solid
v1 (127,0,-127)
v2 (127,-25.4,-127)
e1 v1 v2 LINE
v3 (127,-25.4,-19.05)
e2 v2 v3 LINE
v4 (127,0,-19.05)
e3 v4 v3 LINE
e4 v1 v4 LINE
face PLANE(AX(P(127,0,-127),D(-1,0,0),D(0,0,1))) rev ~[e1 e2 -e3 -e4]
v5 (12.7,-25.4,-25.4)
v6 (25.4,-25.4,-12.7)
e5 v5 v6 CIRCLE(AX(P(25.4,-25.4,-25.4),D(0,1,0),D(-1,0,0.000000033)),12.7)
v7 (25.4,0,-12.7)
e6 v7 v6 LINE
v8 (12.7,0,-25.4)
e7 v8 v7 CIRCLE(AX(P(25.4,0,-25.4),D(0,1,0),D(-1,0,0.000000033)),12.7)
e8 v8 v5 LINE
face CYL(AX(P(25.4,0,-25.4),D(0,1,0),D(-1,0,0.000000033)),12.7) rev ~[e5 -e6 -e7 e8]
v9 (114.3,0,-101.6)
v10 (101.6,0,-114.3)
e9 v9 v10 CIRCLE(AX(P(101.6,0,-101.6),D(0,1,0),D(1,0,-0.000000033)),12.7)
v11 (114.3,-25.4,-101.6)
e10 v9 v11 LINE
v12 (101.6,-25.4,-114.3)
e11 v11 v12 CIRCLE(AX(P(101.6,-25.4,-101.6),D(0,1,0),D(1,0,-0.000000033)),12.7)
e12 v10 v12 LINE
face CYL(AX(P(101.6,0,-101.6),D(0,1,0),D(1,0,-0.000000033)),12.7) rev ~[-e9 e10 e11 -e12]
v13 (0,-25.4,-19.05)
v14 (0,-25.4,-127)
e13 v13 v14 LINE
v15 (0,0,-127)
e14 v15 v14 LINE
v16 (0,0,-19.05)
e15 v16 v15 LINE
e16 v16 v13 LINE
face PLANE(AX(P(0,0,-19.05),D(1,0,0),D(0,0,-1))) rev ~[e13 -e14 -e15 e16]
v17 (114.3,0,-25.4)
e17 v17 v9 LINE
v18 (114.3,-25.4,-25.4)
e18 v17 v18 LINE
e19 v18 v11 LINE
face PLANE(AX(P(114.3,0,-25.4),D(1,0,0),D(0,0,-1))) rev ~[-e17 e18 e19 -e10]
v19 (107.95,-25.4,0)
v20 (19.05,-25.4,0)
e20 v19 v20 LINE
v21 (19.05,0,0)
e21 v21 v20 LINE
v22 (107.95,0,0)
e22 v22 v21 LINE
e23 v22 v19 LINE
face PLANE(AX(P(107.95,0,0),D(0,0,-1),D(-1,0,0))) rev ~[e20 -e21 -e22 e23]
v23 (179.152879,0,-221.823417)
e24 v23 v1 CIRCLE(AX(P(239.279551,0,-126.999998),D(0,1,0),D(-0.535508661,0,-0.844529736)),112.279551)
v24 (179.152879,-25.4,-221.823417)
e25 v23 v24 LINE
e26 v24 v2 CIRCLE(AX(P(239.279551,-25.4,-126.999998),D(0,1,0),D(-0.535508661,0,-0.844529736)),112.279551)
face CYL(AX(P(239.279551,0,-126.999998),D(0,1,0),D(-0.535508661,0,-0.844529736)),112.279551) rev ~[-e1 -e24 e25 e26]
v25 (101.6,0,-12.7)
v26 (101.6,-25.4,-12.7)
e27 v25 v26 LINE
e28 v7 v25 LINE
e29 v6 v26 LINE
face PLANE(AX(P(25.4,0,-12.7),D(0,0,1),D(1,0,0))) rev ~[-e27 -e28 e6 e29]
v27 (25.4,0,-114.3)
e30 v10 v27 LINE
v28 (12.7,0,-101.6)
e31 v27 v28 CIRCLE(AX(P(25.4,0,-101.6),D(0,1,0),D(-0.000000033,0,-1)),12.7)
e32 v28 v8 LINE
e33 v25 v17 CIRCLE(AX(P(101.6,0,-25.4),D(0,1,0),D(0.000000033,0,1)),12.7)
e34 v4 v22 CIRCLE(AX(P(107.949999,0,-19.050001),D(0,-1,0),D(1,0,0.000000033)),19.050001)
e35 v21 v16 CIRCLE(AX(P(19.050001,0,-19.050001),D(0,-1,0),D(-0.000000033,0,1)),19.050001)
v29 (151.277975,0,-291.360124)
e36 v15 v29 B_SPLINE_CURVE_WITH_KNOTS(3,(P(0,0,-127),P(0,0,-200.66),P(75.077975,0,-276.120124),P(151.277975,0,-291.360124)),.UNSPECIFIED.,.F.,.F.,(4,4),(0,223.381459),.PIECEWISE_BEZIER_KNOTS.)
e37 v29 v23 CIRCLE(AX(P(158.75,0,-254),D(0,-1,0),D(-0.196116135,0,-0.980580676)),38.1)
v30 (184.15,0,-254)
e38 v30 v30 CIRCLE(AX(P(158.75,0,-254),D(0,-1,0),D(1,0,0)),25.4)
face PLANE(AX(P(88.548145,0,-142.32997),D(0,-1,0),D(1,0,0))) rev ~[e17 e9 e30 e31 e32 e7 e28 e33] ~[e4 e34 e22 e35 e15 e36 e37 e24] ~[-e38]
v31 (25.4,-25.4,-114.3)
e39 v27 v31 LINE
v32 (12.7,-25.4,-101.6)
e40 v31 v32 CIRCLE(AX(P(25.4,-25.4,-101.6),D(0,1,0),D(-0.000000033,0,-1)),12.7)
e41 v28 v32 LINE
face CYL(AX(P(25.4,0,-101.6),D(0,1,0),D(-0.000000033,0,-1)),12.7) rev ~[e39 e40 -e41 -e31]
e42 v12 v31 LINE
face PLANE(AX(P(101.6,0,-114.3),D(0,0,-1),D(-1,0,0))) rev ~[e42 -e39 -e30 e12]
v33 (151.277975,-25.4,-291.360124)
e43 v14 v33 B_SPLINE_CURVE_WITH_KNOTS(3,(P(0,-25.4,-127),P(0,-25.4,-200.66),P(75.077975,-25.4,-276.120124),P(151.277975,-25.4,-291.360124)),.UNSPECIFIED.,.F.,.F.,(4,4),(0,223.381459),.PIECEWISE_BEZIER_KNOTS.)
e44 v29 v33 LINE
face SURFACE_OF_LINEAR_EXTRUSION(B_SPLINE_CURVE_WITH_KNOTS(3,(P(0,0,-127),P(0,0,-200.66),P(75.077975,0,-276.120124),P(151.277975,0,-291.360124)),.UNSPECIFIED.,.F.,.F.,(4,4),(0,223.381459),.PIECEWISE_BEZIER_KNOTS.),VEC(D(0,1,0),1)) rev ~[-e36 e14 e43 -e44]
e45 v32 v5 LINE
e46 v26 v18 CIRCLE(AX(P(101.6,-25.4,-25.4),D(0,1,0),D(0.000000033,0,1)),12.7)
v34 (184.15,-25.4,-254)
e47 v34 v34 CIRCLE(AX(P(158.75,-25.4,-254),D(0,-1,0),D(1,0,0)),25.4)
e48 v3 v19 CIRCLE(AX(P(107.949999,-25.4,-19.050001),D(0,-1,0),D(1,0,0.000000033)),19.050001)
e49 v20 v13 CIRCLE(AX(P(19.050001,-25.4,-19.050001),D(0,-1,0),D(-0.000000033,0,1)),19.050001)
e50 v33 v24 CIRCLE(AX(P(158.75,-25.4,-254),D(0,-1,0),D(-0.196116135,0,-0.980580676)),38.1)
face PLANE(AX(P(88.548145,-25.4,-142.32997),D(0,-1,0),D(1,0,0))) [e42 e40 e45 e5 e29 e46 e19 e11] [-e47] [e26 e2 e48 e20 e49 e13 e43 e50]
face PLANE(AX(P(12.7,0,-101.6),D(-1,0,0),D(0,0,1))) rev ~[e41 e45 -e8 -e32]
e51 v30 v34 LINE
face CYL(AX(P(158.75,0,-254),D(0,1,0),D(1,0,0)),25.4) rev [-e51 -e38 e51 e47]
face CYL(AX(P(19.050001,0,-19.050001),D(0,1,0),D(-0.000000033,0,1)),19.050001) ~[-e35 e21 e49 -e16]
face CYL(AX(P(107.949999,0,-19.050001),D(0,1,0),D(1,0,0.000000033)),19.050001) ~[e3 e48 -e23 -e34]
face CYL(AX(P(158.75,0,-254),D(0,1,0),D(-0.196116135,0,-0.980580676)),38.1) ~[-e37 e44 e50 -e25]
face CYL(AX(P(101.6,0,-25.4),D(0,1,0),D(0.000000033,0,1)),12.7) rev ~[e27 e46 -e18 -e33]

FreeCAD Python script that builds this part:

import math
import FreeCAD as App
import Part
import Sketcher
from FreeCAD import Vector
Q = App.Units.Quantity

doc = App.newDocument("Part")
body = doc.addObject("PartDesign::Body", "Body")

# Sketch on XZ plane
sketch1 = body.newObject("Sketcher::SketchObject", "Sketch")
sketch1.AttachmentSupport = (doc.getObject("XZ_Plane"), [""])
sketch1.MapMode = "FlatFace"
sketch1.addGeometry(Part.LineSegment(Vector(107.95, 0, 0), Vector(19.05, 0, 0)), False)
sketch1.addGeometry(Part.ArcOfCircle(Part.Circle(Vector(19.050001, -19.050001, 0), Vector(0, 0, 1), 19.050001), math.radians(90.000002), math.radians(179.999998)), False)
sketch1.addGeometry(Part.LineSegment(Vector(0, -19.05, 0), Vector(0, -127, 0)), False)
sketch1.addGeometry(Part.BSplineCurve([Vector(0, -127, 0), Vector(0, -200.66, 0), Vector(75.077975, -276.120124, 0), Vector(151.277975, -291.360124, 0)], [4, 4], [0, 223.381459], False, 3, [1, 1, 1, 1], False), False)
sketch1.addGeometry(Part.ArcOfCircle(Part.Circle(Vector(158.75, -254, 0), Vector(0, 0, 1), 38.1), math.radians(-101.309932), math.radians(57.621587)), False)
sketch1.addGeometry(Part.ArcOfCircle(Part.Circle(Vector(239.279551, -126.999998, 0), Vector(0, 0, 1), 112.279551), math.radians(-179.999999), math.radians(-122.378414)), False)
sketch1.addGeometry(Part.LineSegment(Vector(127, -127, 0), Vector(127, -19.05, 0)), False)
sketch1.addGeometry(Part.ArcOfCircle(Part.Circle(Vector(107.949999, -19.050001, 0), Vector(0, 0, 1), 19.050001), math.radians(0.000002), math.radians(89.999998)), False)
sketch1.addGeometry(Part.Circle(Vector(158.75, -254, 0), Vector(0, 0, 1), 25.4), False)
sketch1.addGeometry(Part.ArcOfCircle(Part.Circle(Vector(101.6, -101.6, 0), Vector(0, 0, 1), 12.7), math.radians(-89.999998), math.radians(-0.000002)), False)
sketch1.addGeometry(Part.LineSegment(Vector(101.6, -114.3, 0), Vector(25.4, -114.3, 0)), False)
sketch1.addGeometry(Part.ArcOfCircle(Part.Circle(Vector(25.4, -101.6, 0), Vector(0, 0, 1), 12.7), math.radians(-179.999998), math.radians(-90.000002)), False)
sketch1.addGeometry(Part.LineSegment(Vector(12.7, -101.6, 0), Vector(12.7, -25.4, 0)), False)
sketch1.addGeometry(Part.ArcOfCircle(Part.Circle(Vector(25.4, -25.4, 0), Vector(0, 0, 1), 12.7), math.radians(90.000002), math.radians(179.999998)), False)
sketch1.addGeometry(Part.LineSegment(Vector(25.4, -12.7, 0), Vector(101.6, -12.7, 0)), False)
sketch1.addGeometry(Part.ArcOfCircle(Part.Circle(Vector(101.6, -25.4, 0), Vector(0, 0, 1), 12.7), math.radians(0.000002), math.radians(89.999998)), False)
sketch1.addGeometry(Part.LineSegment(Vector(114.3, -25.4, 0), Vector(114.3, -101.6, 0)), False)
sketch1.addConstraint(Sketcher.Constraint("Block", 3))
sketch1.addConstraint(Sketcher.Constraint("Coincident", 0, 2, 1, 1))
sketch1.addConstraint(Sketcher.Constraint("Coincident", 1, 2, 2, 1))
sketch1.addConstraint(Sketcher.Constraint("Coincident", 2, 2, 3, 1))
sketch1.addConstraint(Sketcher.Constraint("Coincident", 3, 2, 4, 1))
sketch1.addConstraint(Sketcher.Constraint("Coincident", 4, 2, 5, 2))
sketch1.addConstraint(Sketcher.Constraint("Coincident", 5, 1, 6, 1))
sketch1.addConstraint(Sketcher.Constraint("Coincident", 6, 2, 7, 1))
sketch1.addConstraint(Sketcher.Constraint("Coincident", 7, 2, 0, 1))
sketch1.addConstraint(Sketcher.Constraint("Coincident", 9, 1, 10, 1))
sketch1.addConstraint(Sketcher.Constraint("Coincident", 10, 2, 11, 2))
sketch1.addConstraint(Sketcher.Constraint("Coincident", 11, 1, 12, 1))
sketch1.addConstraint(Sketcher.Constraint("Coincident", 12, 2, 13, 2))
sketch1.addConstraint(Sketcher.Constraint("Coincident", 13, 1, 14, 1))
sketch1.addConstraint(Sketcher.Constraint("Coincident", 14, 2, 15, 2))
sketch1.addConstraint(Sketcher.Constraint("Coincident", 15, 1, 16, 1))
sketch1.addConstraint(Sketcher.Constraint("Coincident", 16, 2, 9, 2))
sketch1.addConstraint(Sketcher.Constraint("Horizontal", 0))
sketch1.addConstraint(Sketcher.Constraint("Vertical", 2))
sketch1.addConstraint(Sketcher.Constraint("Vertical", 6))
sketch1.addConstraint(Sketcher.Constraint("Horizontal", 10))
sketch1.addConstraint(Sketcher.Constraint("Vertical", 12))
sketch1.addConstraint(Sketcher.Constraint("Horizontal", 14))
sketch1.addConstraint(Sketcher.Constraint("Vertical", 16))
sketch1.addConstraint(Sketcher.Constraint("Coincident", 8, 3, 4, 3))
sketch1.addConstraint(Sketcher.Constraint("PointOnObject", 0, 2, -1))
sketch1.addConstraint(Sketcher.Constraint("Diameter", 8, Q("2 in")))
sketch1.addConstraint(Sketcher.Constraint("Radius", 4, Q("1.5 in")))
sketch1.addConstraint(Sketcher.Constraint("Radius", 9, Q("0.5 in")))
sketch1.addConstraint(Sketcher.Constraint("Radius", 11, Q("0.5 in")))
sketch1.addConstraint(Sketcher.Constraint("Radius", 13, Q("0.5 in")))
sketch1.addConstraint(Sketcher.Constraint("Radius", 15, Q("0.5 in")))
sketch1.addConstraint(Sketcher.Constraint("DistanceX", 10, 2, 10, 1, Q("3 in")))
sketch1.addConstraint(Sketcher.Constraint("DistanceX", 14, 1, 14, 2, Q("3 in")))
sketch1.addConstraint(Sketcher.Constraint("DistanceY", 12, 1, 12, 2, Q("3 in")))
sketch1.addConstraint(Sketcher.Constraint("DistanceY", 16, 2, 16, 1, Q("3 in")))
sketch1.addConstraint(Sketcher.Constraint("Radius", 1, Q("0.75 in")))
sketch1.addConstraint(Sketcher.Constraint("Radius", 7, Q("0.75 in")))
sketch1.addConstraint(Sketcher.Constraint("DistanceX", 0, 2, 0, 1, Q("3.5 in")))
sketch1.addConstraint(Sketcher.Constraint("DistanceY", 4, 3, -1, 1, Q("10 in")))
sketch1.addConstraint(Sketcher.Constraint("DistanceY", 5, 3, -1, 1, Q("4.9999999 in")))
sketch1.addConstraint(Sketcher.Constraint("DistanceX", -1, 1, 9, 3, Q("4 in")))
sketch1.addConstraint(Sketcher.Constraint("DistanceY", 9, 3, -1, 1, Q("4 in")))
sketch1.addConstraint(Sketcher.Constraint("DistanceX", -1, 1, 11, 3, Q("1 in")))
sketch1.addConstraint(Sketcher.Constraint("DistanceY", 13, 3, -1, 1, Q("1 in")))
sketch1.addConstraint(Sketcher.Constraint("DistanceX", -1, 1, 5, 1, Q("5 in")))
sketch1.addConstraint(Sketcher.Constraint("DistanceY", 5, 1, -1, 1, Q("5 in")))
sketch1.addConstraint(Sketcher.Constraint("DistanceX", -1, 1, 9, 1, Q("4 in")))
sketch1.addConstraint(Sketcher.Constraint("DistanceY", 11, 1, -1, 1, Q("4 in")))
sketch1.addConstraint(Sketcher.Constraint("DistanceX", -1, 1, 13, 1, Q("1 in")))
sketch1.addConstraint(Sketcher.Constraint("DistanceY", 15, 1, -1, 1, Q("1 in")))
sketch1.addConstraint(Sketcher.Constraint("DistanceY", 2, 2, 2, 1, Q("4.25 in")))
sketch1.addConstraint(Sketcher.Constraint("DistanceY", 6, 1, 6, 2, Q("4.25 in")))
sketch1.addConstraint(Sketcher.Constraint("DistanceX", 0, 2, 7, 3, Q("3.5 in")))
sketch1.addConstraint(Sketcher.Constraint("DistanceX", -1, 1, 4, 2, Q("179.152879 mm")))
pad1 = body.newObject("PartDesign::Pad", "Pad")
pad1.Profile = sketch1
pad1.Length = Q("1 in")

doc.recompute()
